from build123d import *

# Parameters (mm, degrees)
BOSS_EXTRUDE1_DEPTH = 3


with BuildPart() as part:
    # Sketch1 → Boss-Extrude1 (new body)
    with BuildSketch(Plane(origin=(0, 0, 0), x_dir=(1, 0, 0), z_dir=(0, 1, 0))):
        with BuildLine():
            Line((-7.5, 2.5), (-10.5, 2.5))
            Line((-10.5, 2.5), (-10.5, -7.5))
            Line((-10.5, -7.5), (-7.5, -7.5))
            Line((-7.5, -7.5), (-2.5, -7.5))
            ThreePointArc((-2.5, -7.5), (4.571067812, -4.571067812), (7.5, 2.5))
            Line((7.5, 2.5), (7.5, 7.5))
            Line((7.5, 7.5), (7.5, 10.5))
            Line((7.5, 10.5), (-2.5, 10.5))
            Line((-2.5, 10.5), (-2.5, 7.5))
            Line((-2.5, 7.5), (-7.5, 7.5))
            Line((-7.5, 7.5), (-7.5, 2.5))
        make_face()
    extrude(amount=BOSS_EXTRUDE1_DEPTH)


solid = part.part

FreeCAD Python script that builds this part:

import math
import FreeCAD as App
import Part
import Sketcher
from FreeCAD import Vector
Q = App.Units.Quantity

doc = App.newDocument("Part")
body = doc.addObject("PartDesign::Body", "Body")

sketch1 = doc.addObject("Sketcher::SketchObject", "Sketch")
body.addObject(sketch1)
sketch1.AttachmentSupport = (doc.XZ_Plane, [""])
sketch1.MapMode = "FlatFace"
sketch1.addGeometry(Part.LineSegment(Vector(-7.5, -2.5, 0), Vector(-10.5, -2.5, 0)), False)
sketch1.addGeometry(Part.LineSegment(Vector(-10.5, -2.5, 0), Vector(-10.5, 7.5, 0)), False)
sketch1.addGeometry(Part.LineSegment(Vector(-10.5, 7.5, 0), Vector(-2.5, 7.5, 0)), False)
sketch1.addGeometry(Part.ArcOfCircle(Part.Circle(Vector(-2.5, -2.5, 0), Vector(0, 0, 1), 10), math.radians(0), math.radians(90)), False)
sketch1.addGeometry(Part.LineSegment(Vector(7.5, -2.5, 0), Vector(7.5, -10.5, 0)), False)
sketch1.addGeometry(Part.LineSegment(Vector(7.5, -10.5, 0), Vector(-2.5, -10.5, 0)), False)
sketch1.addGeometry(Part.LineSegment(Vector(-2.5, -10.5, 0), Vector(-2.5, -7.5, 0)), False)
sketch1.addGeometry(Part.LineSegment(Vector(-2.5, -7.5, 0), Vector(-7.5, -7.5, 0)), False)
sketch1.addGeometry(Part.LineSegment(Vector(-7.5, -7.5, 0), Vector(-7.5, -2.5, 0)), False)
sketch1.addConstraint(Sketcher.Constraint("Coincident", 0, 2, 1, 1))
sketch1.addConstraint(Sketcher.Constraint("Coincident", 1, 2, 2, 1))
sketch1.addConstraint(Sketcher.Constraint("Tangent", 2, 2, 3, 2))
sketch1.addConstraint(Sketcher.Constraint("Tangent", 3, 1, 4, 1))
sketch1.addConstraint(Sketcher.Constraint("Coincident", 4, 2, 5, 1))
sketch1.addConstraint(Sketcher.Constraint("Coincident", 5, 2, 6, 1))
sketch1.addConstraint(Sketcher.Constraint("Coincident", 6, 2, 7, 1))
sketch1.addConstraint(Sketcher.Constraint("Coincident", 7, 2, 8, 1))
sketch1.addConstraint(Sketcher.Constraint("Coincident", 8, 2, 0, 1))
sketch1.addConstraint(Sketcher.Constraint("Horizontal", 0))
sketch1.addConstraint(Sketcher.Constraint("Vertical", 1))
sketch1.addConstraint(Sketcher.Constraint("Horizontal", 2))
sketch1.addConstraint(Sketcher.Constraint("Vertical", 4))
sketch1.addConstraint(Sketcher.Constraint("Horizontal", 5))
sketch1.addConstraint(Sketcher.Constraint("Vertical", 6))
sketch1.addConstraint(Sketcher.Constraint("Horizontal", 7))
sketch1.addConstraint(Sketcher.Constraint("Vertical", 8))
sketch1.addConstraint(Sketcher.Constraint("Symmetric", 3, 1, 8, 2, -2))
sketch1.addConstraint(Sketcher.Constraint("Symmetric", 2, 2, 6, 2, -1))
sketch1.addConstraint(Sketcher.Constraint("Equal", 2, 4))
sketch1.addConstraint(Sketcher.Constraint("Equal", 0, 6))
sketch1.addConstraint(Sketcher.Constraint("Radius", 3, Q("10 mm")))
sketch1.addConstraint(Sketcher.Constraint("DistanceX", 0, 2, 0, 1, Q("3 mm")))
sketch1.addConstraint(Sketcher.Constraint("DistanceX", 2, 1, 2, 2, Q("8 mm")))
pad1 = doc.addObject("PartDesign::Pad", "Pad")
body.addObject(pad1)
pad1.Profile = sketch1
pad1.Length = 3
pad1.Reversed = True

doc.recompute()
